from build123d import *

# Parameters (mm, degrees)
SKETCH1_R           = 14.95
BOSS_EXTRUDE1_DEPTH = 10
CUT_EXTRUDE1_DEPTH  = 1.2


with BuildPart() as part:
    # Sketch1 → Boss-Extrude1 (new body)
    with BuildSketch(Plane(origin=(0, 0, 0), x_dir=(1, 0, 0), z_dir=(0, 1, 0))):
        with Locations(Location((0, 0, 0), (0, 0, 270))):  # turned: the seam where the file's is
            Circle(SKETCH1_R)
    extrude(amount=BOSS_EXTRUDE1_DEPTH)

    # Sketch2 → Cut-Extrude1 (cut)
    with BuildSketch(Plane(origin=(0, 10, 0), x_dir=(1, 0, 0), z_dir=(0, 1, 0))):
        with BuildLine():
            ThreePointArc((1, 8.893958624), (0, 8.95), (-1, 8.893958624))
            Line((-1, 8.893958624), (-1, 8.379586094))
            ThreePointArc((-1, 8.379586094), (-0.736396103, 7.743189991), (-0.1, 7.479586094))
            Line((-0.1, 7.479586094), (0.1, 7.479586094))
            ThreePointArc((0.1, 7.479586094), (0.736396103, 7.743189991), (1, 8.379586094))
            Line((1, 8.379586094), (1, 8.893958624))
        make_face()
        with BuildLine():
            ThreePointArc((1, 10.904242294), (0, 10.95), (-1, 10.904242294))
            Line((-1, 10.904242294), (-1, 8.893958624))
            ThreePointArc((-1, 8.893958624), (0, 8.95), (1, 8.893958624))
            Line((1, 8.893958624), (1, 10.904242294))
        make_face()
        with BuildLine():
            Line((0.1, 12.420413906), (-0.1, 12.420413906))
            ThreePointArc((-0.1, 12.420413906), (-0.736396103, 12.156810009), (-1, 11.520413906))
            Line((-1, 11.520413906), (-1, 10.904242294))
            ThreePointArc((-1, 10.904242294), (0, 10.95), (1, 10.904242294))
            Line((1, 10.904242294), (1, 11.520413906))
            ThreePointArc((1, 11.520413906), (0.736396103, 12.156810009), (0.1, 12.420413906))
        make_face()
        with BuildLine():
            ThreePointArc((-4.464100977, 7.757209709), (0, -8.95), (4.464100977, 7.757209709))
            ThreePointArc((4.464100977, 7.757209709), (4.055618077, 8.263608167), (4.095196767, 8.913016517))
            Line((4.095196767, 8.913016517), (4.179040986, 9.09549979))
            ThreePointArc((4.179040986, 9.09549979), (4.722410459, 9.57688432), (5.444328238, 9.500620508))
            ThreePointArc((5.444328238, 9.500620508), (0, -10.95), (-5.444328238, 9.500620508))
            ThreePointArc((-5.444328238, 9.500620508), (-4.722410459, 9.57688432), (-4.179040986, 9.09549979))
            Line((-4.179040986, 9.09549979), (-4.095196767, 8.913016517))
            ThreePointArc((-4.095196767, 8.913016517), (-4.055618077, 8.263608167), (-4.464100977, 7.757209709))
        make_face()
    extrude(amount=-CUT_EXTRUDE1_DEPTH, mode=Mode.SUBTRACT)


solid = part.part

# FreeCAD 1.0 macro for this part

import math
import FreeCAD as App
import Part
import Sketcher

V = App.Vector

doc = App.newDocument("Part")
body = doc.addObject("PartDesign::Body", "Body")

# Sketch on XZ plane
sketch1 = body.newObject("Sketcher::SketchObject", "Sketch")
sketch1.AttachmentSupport = (doc.getObject("XZ_Plane"), [""])
sketch1.MapMode = "FlatFace"
sketch1.addGeometry(Part.Circle(V(0, 0, 0), V(0, 0, 1), 14.95), False)
sketch1.addConstraint([
    Sketcher.Constraint("Coincident", 0, 3, -1, 1),
    Sketcher.Constraint("Diameter", 0, 29.9),
])
pad1 = body.newObject("PartDesign::Pad", "Pad")
pad1.Profile = sketch1
pad1.Length = 10
pad1.Reversed = True

# Sketch on XZ plane
sketch2 = body.newObject("Sketcher::SketchObject", "Sketch001")
sketch2.AttachmentSupport = (doc.getObject("XZ_Plane"), [""])
sketch2.MapMode = "FlatFace"
sketch2.AttachmentOffset = App.Placement(V(0, 0, -10), App.Rotation())
sketch2.addGeometry([
    Part.ArcOfCircle(Part.Circle(V(-0.1, -8.379586, 0), V(0, 0, 1), 0.9), math.radians(90), math.radians(180)),  # 0
    Part.LineSegment(V(-0.1, -7.479586, 0), V(0.1, -7.479586, 0)),  # 1
    Part.ArcOfCircle(Part.Circle(V(0.1, -8.379586, 0), V(0, 0, 1), 0.9), math.radians(0), math.radians(90)),  # 2
    Part.LineSegment(V(1, -8.379586, 0), V(1, -11.520414, 0)),  # 3
    Part.ArcOfCircle(Part.Circle(V(0.1, -11.520414, 0), V(0, 0, 1), 0.9), math.radians(-90), math.radians(0)),  # 4
    Part.LineSegment(V(0.1, -12.420414, 0), V(-0.1, -12.420414, 0)),  # 5
    Part.ArcOfCircle(Part.Circle(V(-0.1, -11.520414, 0), V(0, 0, 1), 0.9), math.radians(180), math.radians(270)),  # 6
    Part.LineSegment(V(-1, -11.520414, 0), V(-1, -8.379586, 0)),  # 7
    Part.ArcOfCircle(Part.Circle(V(0, 0, 0), V(0, 0, 1), 8.95), math.radians(-60.080534), math.radians(240.080534)),  # 8
    Part.ArcOfCircle(Part.Circle(V(-4.913005, -8.537264, 0), V(0, 0, 1), 0.9), math.radians(-24.677007), math.radians(60.080534)),  # 9
    Part.LineSegment(V(-4.095197, -8.913017, 0), V(-4.179041, -9.0955, 0)),  # 10
    Part.ArcOfCircle(Part.Circle(V(-4.996849, -8.719748, 0), V(0, 0, 1), 0.9), math.radians(-119.814855), math.radians(-24.677007)),  # 11
    Part.ArcOfCircle(Part.Circle(V(0, 0, 0), V(0, 0, 1), 10.95), math.radians(-60.185145), math.radians(240.185145)),  # 12
    Part.ArcOfCircle(Part.Circle(V(4.996849, -8.719748, 0), V(0, 0, 1), 0.9), math.radians(-155.322993), math.radians(-60.185145)),  # 13
    Part.LineSegment(V(4.179041, -9.0955, 0), V(4.095197, -8.913017, 0)),  # 14
    Part.ArcOfCircle(Part.Circle(V(4.913005, -8.537264, 0), V(0, 0, 1), 0.9), math.radians(119.919466), math.radians(204.677007)),  # 15
], False)
sketch2.addConstraint([
    Sketcher.Constraint("Tangent", 0, 1, 1, 1),
    Sketcher.Constraint("Tangent", 1, 2, 2, 2),
    Sketcher.Constraint("Tangent", 2, 1, 3, 1),
    Sketcher.Constraint("Tangent", 3, 2, 4, 2),
    Sketcher.Constraint("Tangent", 4, 1, 5, 1),
    Sketcher.Constraint("Tangent", 5, 2, 6, 2),
    Sketcher.Constraint("Tangent", 6, 1, 7, 1),
    Sketcher.Constraint("Tangent", 7, 2, 0, 2),
    Sketcher.Constraint("Tangent", 8, 2, 9, 2),
    Sketcher.Constraint("Tangent", 9, 1, 10, 1),
    Sketcher.Constraint("Tangent", 10, 2, 11, 2),
    Sketcher.Constraint("Tangent", 11, 1, 12, 2),
    Sketcher.Constraint("Tangent", 12, 1, 13, 2),
    Sketcher.Constraint("Tangent", 13, 1, 14, 1),
    Sketcher.Constraint("Tangent", 14, 2, 15, 2),
    Sketcher.Constraint("Tangent", 15, 1, 8, 1),
    Sketcher.Constraint("Horizontal", 1),
    Sketcher.Constraint("Vertical", 3),
    Sketcher.Constraint("Horizontal", 5),
    Sketcher.Constraint("Vertical", 7),
    Sketcher.Constraint("Coincident", 8, 3, -1, 1),
    Sketcher.Constraint("Coincident", 12, 3, -1, 1),
    Sketcher.Constraint("Equal", 0, 2),
    Sketcher.Constraint("Equal", 2, 4),
    Sketcher.Constraint("Equal", 4, 6),
    Sketcher.Constraint("Equal", 6, 9),
    Sketcher.Constraint("Equal", 9, 11),
    Sketcher.Constraint("Equal", 11, 13),
    Sketcher.Constraint("Equal", 13, 15),
    Sketcher.Constraint("Symmetric", 10, 2, 13, 1, -2),
    Sketcher.Constraint("Radius", 0, 0.9),
    Sketcher.Constraint("Radius", 8, 8.95),
    Sketcher.Constraint("Radius", 12, 10.95),
    Sketcher.Constraint("DistanceX", 1, 1, 1, 2, 0.2),
    Sketcher.Constraint("DistanceX", -1, 1, 2, 1, 1.0),
    Sketcher.Constraint("DistanceX", 8, 2, -1, 1, 4.464101),
    Sketcher.Constraint("DistanceY", 10, 2, -1, 1, 9.0955),
    Sketcher.Constraint("DistanceY", 3, 2, 3, 1, 3.140828),
    Sketcher.Constraint("DistanceY", 9, 3, 0, 3, 0.157678),
])
pocket1 = body.newObject("PartDesign::Pocket", "Pocket")
pocket1.Profile = sketch2
pocket1.Length = 1.2
pocket1.Reversed = True

doc.recompute()
